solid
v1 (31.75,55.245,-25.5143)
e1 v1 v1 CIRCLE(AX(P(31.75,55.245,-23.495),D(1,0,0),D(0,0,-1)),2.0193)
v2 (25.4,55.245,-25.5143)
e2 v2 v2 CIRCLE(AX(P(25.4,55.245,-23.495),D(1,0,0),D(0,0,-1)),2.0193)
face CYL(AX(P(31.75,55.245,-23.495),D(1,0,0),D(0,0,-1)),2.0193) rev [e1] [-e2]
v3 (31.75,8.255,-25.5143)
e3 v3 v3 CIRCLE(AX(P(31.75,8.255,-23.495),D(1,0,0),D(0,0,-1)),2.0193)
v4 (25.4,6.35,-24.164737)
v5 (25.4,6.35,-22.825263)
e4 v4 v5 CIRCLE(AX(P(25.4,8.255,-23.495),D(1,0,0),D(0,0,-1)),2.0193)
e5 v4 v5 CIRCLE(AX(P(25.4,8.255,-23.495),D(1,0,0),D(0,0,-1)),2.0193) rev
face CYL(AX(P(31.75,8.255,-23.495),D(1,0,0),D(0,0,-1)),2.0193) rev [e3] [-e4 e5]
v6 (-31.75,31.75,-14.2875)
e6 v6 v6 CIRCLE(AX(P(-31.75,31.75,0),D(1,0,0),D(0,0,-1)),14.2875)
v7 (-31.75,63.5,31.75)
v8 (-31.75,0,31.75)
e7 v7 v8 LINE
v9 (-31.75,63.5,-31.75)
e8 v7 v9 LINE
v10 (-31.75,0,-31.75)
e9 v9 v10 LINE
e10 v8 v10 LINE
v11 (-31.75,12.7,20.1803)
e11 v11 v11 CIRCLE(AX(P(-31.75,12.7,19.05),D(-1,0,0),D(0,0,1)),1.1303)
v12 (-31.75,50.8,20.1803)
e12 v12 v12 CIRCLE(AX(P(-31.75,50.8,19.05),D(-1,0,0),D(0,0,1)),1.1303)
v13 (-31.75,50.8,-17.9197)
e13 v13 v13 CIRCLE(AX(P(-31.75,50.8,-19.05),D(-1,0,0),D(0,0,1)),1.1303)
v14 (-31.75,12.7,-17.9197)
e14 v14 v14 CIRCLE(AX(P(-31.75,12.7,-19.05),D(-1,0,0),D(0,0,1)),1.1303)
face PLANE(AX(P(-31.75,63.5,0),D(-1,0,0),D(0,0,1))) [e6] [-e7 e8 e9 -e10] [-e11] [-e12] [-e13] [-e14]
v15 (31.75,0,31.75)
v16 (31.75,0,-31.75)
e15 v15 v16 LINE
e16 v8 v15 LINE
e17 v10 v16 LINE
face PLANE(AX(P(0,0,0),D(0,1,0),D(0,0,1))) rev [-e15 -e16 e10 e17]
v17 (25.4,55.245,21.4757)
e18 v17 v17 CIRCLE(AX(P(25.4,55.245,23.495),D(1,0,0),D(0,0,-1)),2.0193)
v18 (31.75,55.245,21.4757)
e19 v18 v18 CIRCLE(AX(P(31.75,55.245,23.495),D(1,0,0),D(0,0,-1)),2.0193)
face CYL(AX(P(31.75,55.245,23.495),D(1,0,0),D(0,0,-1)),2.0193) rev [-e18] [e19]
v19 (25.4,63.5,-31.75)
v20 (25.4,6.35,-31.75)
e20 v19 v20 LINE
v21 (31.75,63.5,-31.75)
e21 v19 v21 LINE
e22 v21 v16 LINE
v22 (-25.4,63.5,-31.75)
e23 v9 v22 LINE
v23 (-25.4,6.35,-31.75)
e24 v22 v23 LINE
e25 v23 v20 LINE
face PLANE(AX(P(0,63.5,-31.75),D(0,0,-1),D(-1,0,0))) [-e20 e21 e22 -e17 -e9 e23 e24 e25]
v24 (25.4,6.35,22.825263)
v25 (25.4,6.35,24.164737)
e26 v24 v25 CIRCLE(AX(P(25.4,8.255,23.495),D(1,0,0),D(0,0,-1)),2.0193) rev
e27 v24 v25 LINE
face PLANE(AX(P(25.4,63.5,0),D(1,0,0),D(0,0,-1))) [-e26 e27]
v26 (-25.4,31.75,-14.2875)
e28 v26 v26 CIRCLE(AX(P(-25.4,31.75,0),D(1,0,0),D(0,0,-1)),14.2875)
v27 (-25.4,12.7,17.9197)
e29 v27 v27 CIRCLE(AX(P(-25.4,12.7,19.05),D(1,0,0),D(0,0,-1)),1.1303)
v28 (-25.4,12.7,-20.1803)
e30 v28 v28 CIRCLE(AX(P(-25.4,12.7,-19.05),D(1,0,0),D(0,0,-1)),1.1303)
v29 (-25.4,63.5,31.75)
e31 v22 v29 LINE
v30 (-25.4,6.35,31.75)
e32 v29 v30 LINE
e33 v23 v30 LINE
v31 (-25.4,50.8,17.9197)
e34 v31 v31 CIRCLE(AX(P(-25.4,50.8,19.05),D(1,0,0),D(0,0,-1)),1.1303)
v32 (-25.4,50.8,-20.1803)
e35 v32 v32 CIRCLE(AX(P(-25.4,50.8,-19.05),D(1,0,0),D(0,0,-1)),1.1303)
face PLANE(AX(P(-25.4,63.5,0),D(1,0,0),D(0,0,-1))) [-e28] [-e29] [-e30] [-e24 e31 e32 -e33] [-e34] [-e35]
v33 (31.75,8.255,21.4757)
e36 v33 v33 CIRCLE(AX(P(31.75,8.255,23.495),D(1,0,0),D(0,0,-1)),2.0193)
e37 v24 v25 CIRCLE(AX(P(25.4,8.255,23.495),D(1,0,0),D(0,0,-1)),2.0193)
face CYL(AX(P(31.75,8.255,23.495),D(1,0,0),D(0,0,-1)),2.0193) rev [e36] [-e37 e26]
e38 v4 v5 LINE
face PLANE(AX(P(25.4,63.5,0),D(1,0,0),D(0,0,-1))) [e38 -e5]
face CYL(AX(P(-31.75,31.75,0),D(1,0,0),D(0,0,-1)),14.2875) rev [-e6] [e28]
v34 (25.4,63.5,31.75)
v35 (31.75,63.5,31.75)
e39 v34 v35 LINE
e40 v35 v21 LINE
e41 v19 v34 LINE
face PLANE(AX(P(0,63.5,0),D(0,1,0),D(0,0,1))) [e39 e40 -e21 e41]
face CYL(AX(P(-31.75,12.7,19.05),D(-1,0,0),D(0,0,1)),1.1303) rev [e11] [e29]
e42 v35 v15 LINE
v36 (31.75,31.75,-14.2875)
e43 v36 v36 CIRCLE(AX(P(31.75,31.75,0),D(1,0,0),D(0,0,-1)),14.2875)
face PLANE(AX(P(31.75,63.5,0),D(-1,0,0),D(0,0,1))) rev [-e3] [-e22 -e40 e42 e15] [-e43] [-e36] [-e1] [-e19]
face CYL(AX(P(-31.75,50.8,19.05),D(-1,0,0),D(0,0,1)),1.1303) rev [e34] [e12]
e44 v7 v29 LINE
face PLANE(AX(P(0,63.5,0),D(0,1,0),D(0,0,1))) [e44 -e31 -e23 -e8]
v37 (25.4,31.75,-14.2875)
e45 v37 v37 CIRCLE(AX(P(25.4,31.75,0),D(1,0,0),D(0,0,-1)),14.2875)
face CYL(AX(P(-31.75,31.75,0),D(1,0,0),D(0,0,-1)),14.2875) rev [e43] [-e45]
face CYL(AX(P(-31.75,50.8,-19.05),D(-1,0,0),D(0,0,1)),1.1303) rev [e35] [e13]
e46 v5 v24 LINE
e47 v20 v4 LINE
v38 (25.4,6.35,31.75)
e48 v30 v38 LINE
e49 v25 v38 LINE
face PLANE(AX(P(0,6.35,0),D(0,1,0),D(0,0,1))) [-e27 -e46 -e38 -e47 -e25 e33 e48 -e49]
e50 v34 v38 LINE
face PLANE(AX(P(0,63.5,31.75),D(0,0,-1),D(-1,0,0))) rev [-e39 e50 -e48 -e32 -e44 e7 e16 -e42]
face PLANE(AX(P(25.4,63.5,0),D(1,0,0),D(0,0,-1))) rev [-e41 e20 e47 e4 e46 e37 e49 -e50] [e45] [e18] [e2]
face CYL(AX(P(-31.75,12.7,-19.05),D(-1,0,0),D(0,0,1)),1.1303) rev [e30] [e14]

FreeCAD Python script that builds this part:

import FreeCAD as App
import Part
import Sketcher
from FreeCAD import Vector
Q = App.Units.Quantity

doc = App.newDocument("Part")
body = doc.addObject("PartDesign::Body", "Body")

sketch1 = body.newObject("Sketcher::SketchObject", "Sketch")
sketch1.AttachmentSupport = (doc.getObject("XZ_Plane"), [""])
sketch1.MapMode = "FlatFace"
sketch1.addGeometry([
    Part.LineSegment(Vector(25, -32, 0), Vector(25, 32, 0)),
    Part.LineSegment(Vector(25, 32, 0), Vector(32, 32, 0)),
    Part.LineSegment(Vector(32, 32, 0), Vector(32, -32, 0)),
    Part.LineSegment(Vector(32, -32, 0), Vector(25, -32, 0)),
], False)
sketch1.addConstraint([
    Sketcher.Constraint("Coincident", 0, 2, 1, 1),
    Sketcher.Constraint("Coincident", 1, 2, 2, 1),
    Sketcher.Constraint("Coincident", 2, 2, 3, 1),
    Sketcher.Constraint("Coincident", 3, 2, 0, 1),
    Sketcher.Constraint("Vertical", 0),
    Sketcher.Constraint("Horizontal", 1),
    Sketcher.Constraint("Vertical", 2),
    Sketcher.Constraint("Horizontal", 3),
    Sketcher.Constraint("DistanceY", 0, 1, 0, 2, Q("2.5 in")),
    Sketcher.Constraint("DistanceX", -1, 1, 0, 2, Q("1 in")),
    Sketcher.Constraint("DistanceX", 1, 1, 1, 2, Q("0.25 in")),
    Sketcher.Constraint("DistanceY", -1, 1, 0, 2, Q("1.25 in")),
])
pad1 = body.newObject("PartDesign::Pad", "Pad")
pad1.Profile = sketch1
pad1.Length = Q("2.5 in")
pad1.Reversed = True

sketch2 = body.newObject("Sketcher::SketchObject", "Sketch001")
sketch2.AttachmentSupport = (doc.getObject("XZ_Plane"), [""])
sketch2.MapMode = "FlatFace"
sketch2.addGeometry([
    Part.LineSegment(Vector(-25, -32, 0), Vector(-25, 32, 0)),
    Part.LineSegment(Vector(-25, 32, 0), Vector(25, 32, 0)),
    Part.LineSegment(Vector(25, 32, 0), Vector(25, -32, 0)),
    Part.LineSegment(Vector(25, -32, 0), Vector(-25, -32, 0)),
], False)
sketch2.addConstraint([
    Sketcher.Constraint("Coincident", 0, 2, 1, 1),
    Sketcher.Constraint("Coincident", 1, 2, 2, 1),
    Sketcher.Constraint("Coincident", 2, 2, 3, 1),
    Sketcher.Constraint("Coincident", 3, 2, 0, 1),
    Sketcher.Constraint("Vertical", 0),
    Sketcher.Constraint("Horizontal", 1),
    Sketcher.Constraint("Vertical", 2),
    Sketcher.Constraint("Horizontal", 3),
    Sketcher.Constraint("Symmetric", 0, 2, 2, 2, -1, 1),
    Sketcher.Constraint("DistanceX", 1, 1, 1, 2, Q("2 in")),
    Sketcher.Constraint("DistanceY", 0, 1, 0, 2, Q("2.5 in")),
])
pad2 = body.newObject("PartDesign::Pad", "Pad001")
pad2.Profile = sketch2
pad2.Length = Q("0.25 in")
pad2.Reversed = True

sketch3 = body.newObject("Sketcher::SketchObject", "Sketch002")
sketch3.AttachmentSupport = (doc.getObject("XZ_Plane"), [""])
sketch3.MapMode = "FlatFace"
sketch3.addGeometry([
    Part.LineSegment(Vector(-32, -32, 0), Vector(-32, 32, 0)),
    Part.LineSegment(Vector(-32, 32, 0), Vector(-25, 32, 0)),
    Part.LineSegment(Vector(-25, 32, 0), Vector(-25, -32, 0)),
    Part.LineSegment(Vector(-25, -32, 0), Vector(-32, -32, 0)),
], False)
sketch3.addConstraint([
    Sketcher.Constraint("Coincident", 0, 2, 1, 1),
    Sketcher.Constraint("Coincident", 1, 2, 2, 1),
    Sketcher.Constraint("Coincident", 2, 2, 3, 1),
    Sketcher.Constraint("Coincident", 3, 2, 0, 1),
    Sketcher.Constraint("Vertical", 0),
    Sketcher.Constraint("Horizontal", 1),
    Sketcher.Constraint("Vertical", 2),
    Sketcher.Constraint("Horizontal", 3),
    Sketcher.Constraint("DistanceY", 0, 1, 0, 2, Q("2.5 in")),
    Sketcher.Constraint("DistanceX", 1, 2, -1, 1, Q("1 in")),
    Sketcher.Constraint("DistanceX", 1, 1, 1, 2, Q("0.25 in")),
    Sketcher.Constraint("DistanceY", -1, 1, 0, 2, Q("1.25 in")),
])
pad3 = body.newObject("PartDesign::Pad", "Pad002")
pad3.Profile = sketch3
pad3.Length = Q("2.5 in")
pad3.Reversed = True

sketch4 = body.newObject("Sketcher::SketchObject", "Sketch003")
sketch4.AttachmentSupport = (doc.getObject("YZ_Plane"), [""])
sketch4.MapMode = "FlatFace"
sketch4.AttachmentOffset = App.Placement(Vector(0, 0, 1.25 * 25.4), App.Rotation())
sketch4.addGeometry(Part.Circle(Vector(32, 0, 0), Vector(0, 0, 1), 14), False)
sketch4.addConstraint([
    Sketcher.Constraint("PointOnObject", 0, 3, -1),
    Sketcher.Constraint("Diameter", 0, Q("1.125 in")),
    Sketcher.Constraint("DistanceX", -1, 1, 0, 3, Q("1.25 in")),
])
pocket1 = body.newObject("PartDesign::Pocket", "Pocket")
pocket1.Profile = sketch4
pocket1.Type = "ThroughAll"

sketch5 = body.newObject("Sketcher::SketchObject", "Sketch004")
sketch5.AttachmentSupport = (doc.getObject("YZ_Plane"), [""])
sketch5.MapMode = "FlatFace"
sketch5.AttachmentOffset = App.Placement(Vector(0, 0, -1.25 * 25.4), App.Rotation())
sketch5.addGeometry([
    Part.Circle(Vector(50.8, -19.1, 0), Vector(0, 0, 1), 1.1),
    Part.Circle(Vector(50.8, 19.1, 0), Vector(0, 0, 1), 1.1),
    Part.Circle(Vector(12.7, 19.1, 0), Vector(0, 0, 1), 1.1),
    Part.Circle(Vector(12.7, -19.1, 0), Vector(0, 0, 1), 1.1),
], False)
sketch5.addConstraint([
    Sketcher.Constraint("Equal", 0, 1),
    Sketcher.Constraint("Equal", 1, 2),
    Sketcher.Constraint("Equal", 2, 3),
    Sketcher.Constraint("Symmetric", 0, 3, 1, 3, -1),
    Sketcher.Constraint("Symmetric", 2, 3, 3, 3, -1),
    Sketcher.Constraint("Horizontal", 1, 3, 2, 3),
    Sketcher.Constraint("Diameter", 0, Q("0.089 in")),
    Sketcher.Constraint("DistanceX", -1, 1, 0, 3, Q("2 in")),
    Sketcher.Constraint("DistanceX", -1, 1, 2, 3, Q("0.5 in")),
    Sketcher.Constraint("DistanceY", 0, 3, 1, 3, Q("1.5 in")),
])
doc.recompute()
hole = body.newObject("PartDesign::Hole", "Hole")
hole.Profile = sketch5
hole.ThreadType = "None"
hole.Diameter = Q("0.089 in")
hole.DepthType = "Dimension"
hole.Depth = Q("1 in")
hole.DrillPoint = "Angled"
hole.DrillPointAngle = 118
hole.Reversed = True

sketch6 = body.newObject("Sketcher::SketchObject", "Sketch005")
sketch6.AttachmentSupport = (doc.getObject("YZ_Plane"), [""])
sketch6.MapMode = "FlatFace"
sketch6.AttachmentOffset = App.Placement(Vector(0, 0, 1.25 * 25.4), App.Rotation())
sketch6.addGeometry([
    Part.Circle(Vector(55.2, 23.5, 0), Vector(0, 0, 1), 2),
    Part.Circle(Vector(55.2, -23.5, 0), Vector(0, 0, 1), 2),
    Part.Circle(Vector(8.3, -23.5, 0), Vector(0, 0, 1), 2),
    Part.Circle(Vector(8.3, 23.5, 0), Vector(0, 0, 1), 2),
], False)
sketch6.addConstraint([
    Sketcher.Constraint("Equal", 0, 1),
    Sketcher.Constraint("Equal", 1, 2),
    Sketcher.Constraint("Equal", 2, 3),
    Sketcher.Constraint("Symmetric", 0, 3, 1, 3, -1),
    Sketcher.Constraint("Symmetric", 2, 3, 3, 3, -1),
    Sketcher.Constraint("Horizontal", 1, 3, 2, 3),
    Sketcher.Constraint("Diameter", 0, Q("0.159 in")),
    Sketcher.Constraint("DistanceY", 1, 3, 0, 3, Q("1.85 in")),
    Sketcher.Constraint("DistanceX", 2, 3, 1, 3, Q("1.85 in")),
    Sketcher.Constraint("DistanceX", -1, 1, 0, 3, Q("2.175 in")),
])
doc.recompute()
hole2 = body.newObject("PartDesign::Hole", "Hole001")
hole2.Profile = sketch6
hole2.ThreadType = "None"
hole2.Diameter = Q("0.159 in")
hole2.DepthType = "Dimension"
hole2.Depth = Q("0.25 in")
hole2.DrillPoint = "Flat"

doc.recompute()
